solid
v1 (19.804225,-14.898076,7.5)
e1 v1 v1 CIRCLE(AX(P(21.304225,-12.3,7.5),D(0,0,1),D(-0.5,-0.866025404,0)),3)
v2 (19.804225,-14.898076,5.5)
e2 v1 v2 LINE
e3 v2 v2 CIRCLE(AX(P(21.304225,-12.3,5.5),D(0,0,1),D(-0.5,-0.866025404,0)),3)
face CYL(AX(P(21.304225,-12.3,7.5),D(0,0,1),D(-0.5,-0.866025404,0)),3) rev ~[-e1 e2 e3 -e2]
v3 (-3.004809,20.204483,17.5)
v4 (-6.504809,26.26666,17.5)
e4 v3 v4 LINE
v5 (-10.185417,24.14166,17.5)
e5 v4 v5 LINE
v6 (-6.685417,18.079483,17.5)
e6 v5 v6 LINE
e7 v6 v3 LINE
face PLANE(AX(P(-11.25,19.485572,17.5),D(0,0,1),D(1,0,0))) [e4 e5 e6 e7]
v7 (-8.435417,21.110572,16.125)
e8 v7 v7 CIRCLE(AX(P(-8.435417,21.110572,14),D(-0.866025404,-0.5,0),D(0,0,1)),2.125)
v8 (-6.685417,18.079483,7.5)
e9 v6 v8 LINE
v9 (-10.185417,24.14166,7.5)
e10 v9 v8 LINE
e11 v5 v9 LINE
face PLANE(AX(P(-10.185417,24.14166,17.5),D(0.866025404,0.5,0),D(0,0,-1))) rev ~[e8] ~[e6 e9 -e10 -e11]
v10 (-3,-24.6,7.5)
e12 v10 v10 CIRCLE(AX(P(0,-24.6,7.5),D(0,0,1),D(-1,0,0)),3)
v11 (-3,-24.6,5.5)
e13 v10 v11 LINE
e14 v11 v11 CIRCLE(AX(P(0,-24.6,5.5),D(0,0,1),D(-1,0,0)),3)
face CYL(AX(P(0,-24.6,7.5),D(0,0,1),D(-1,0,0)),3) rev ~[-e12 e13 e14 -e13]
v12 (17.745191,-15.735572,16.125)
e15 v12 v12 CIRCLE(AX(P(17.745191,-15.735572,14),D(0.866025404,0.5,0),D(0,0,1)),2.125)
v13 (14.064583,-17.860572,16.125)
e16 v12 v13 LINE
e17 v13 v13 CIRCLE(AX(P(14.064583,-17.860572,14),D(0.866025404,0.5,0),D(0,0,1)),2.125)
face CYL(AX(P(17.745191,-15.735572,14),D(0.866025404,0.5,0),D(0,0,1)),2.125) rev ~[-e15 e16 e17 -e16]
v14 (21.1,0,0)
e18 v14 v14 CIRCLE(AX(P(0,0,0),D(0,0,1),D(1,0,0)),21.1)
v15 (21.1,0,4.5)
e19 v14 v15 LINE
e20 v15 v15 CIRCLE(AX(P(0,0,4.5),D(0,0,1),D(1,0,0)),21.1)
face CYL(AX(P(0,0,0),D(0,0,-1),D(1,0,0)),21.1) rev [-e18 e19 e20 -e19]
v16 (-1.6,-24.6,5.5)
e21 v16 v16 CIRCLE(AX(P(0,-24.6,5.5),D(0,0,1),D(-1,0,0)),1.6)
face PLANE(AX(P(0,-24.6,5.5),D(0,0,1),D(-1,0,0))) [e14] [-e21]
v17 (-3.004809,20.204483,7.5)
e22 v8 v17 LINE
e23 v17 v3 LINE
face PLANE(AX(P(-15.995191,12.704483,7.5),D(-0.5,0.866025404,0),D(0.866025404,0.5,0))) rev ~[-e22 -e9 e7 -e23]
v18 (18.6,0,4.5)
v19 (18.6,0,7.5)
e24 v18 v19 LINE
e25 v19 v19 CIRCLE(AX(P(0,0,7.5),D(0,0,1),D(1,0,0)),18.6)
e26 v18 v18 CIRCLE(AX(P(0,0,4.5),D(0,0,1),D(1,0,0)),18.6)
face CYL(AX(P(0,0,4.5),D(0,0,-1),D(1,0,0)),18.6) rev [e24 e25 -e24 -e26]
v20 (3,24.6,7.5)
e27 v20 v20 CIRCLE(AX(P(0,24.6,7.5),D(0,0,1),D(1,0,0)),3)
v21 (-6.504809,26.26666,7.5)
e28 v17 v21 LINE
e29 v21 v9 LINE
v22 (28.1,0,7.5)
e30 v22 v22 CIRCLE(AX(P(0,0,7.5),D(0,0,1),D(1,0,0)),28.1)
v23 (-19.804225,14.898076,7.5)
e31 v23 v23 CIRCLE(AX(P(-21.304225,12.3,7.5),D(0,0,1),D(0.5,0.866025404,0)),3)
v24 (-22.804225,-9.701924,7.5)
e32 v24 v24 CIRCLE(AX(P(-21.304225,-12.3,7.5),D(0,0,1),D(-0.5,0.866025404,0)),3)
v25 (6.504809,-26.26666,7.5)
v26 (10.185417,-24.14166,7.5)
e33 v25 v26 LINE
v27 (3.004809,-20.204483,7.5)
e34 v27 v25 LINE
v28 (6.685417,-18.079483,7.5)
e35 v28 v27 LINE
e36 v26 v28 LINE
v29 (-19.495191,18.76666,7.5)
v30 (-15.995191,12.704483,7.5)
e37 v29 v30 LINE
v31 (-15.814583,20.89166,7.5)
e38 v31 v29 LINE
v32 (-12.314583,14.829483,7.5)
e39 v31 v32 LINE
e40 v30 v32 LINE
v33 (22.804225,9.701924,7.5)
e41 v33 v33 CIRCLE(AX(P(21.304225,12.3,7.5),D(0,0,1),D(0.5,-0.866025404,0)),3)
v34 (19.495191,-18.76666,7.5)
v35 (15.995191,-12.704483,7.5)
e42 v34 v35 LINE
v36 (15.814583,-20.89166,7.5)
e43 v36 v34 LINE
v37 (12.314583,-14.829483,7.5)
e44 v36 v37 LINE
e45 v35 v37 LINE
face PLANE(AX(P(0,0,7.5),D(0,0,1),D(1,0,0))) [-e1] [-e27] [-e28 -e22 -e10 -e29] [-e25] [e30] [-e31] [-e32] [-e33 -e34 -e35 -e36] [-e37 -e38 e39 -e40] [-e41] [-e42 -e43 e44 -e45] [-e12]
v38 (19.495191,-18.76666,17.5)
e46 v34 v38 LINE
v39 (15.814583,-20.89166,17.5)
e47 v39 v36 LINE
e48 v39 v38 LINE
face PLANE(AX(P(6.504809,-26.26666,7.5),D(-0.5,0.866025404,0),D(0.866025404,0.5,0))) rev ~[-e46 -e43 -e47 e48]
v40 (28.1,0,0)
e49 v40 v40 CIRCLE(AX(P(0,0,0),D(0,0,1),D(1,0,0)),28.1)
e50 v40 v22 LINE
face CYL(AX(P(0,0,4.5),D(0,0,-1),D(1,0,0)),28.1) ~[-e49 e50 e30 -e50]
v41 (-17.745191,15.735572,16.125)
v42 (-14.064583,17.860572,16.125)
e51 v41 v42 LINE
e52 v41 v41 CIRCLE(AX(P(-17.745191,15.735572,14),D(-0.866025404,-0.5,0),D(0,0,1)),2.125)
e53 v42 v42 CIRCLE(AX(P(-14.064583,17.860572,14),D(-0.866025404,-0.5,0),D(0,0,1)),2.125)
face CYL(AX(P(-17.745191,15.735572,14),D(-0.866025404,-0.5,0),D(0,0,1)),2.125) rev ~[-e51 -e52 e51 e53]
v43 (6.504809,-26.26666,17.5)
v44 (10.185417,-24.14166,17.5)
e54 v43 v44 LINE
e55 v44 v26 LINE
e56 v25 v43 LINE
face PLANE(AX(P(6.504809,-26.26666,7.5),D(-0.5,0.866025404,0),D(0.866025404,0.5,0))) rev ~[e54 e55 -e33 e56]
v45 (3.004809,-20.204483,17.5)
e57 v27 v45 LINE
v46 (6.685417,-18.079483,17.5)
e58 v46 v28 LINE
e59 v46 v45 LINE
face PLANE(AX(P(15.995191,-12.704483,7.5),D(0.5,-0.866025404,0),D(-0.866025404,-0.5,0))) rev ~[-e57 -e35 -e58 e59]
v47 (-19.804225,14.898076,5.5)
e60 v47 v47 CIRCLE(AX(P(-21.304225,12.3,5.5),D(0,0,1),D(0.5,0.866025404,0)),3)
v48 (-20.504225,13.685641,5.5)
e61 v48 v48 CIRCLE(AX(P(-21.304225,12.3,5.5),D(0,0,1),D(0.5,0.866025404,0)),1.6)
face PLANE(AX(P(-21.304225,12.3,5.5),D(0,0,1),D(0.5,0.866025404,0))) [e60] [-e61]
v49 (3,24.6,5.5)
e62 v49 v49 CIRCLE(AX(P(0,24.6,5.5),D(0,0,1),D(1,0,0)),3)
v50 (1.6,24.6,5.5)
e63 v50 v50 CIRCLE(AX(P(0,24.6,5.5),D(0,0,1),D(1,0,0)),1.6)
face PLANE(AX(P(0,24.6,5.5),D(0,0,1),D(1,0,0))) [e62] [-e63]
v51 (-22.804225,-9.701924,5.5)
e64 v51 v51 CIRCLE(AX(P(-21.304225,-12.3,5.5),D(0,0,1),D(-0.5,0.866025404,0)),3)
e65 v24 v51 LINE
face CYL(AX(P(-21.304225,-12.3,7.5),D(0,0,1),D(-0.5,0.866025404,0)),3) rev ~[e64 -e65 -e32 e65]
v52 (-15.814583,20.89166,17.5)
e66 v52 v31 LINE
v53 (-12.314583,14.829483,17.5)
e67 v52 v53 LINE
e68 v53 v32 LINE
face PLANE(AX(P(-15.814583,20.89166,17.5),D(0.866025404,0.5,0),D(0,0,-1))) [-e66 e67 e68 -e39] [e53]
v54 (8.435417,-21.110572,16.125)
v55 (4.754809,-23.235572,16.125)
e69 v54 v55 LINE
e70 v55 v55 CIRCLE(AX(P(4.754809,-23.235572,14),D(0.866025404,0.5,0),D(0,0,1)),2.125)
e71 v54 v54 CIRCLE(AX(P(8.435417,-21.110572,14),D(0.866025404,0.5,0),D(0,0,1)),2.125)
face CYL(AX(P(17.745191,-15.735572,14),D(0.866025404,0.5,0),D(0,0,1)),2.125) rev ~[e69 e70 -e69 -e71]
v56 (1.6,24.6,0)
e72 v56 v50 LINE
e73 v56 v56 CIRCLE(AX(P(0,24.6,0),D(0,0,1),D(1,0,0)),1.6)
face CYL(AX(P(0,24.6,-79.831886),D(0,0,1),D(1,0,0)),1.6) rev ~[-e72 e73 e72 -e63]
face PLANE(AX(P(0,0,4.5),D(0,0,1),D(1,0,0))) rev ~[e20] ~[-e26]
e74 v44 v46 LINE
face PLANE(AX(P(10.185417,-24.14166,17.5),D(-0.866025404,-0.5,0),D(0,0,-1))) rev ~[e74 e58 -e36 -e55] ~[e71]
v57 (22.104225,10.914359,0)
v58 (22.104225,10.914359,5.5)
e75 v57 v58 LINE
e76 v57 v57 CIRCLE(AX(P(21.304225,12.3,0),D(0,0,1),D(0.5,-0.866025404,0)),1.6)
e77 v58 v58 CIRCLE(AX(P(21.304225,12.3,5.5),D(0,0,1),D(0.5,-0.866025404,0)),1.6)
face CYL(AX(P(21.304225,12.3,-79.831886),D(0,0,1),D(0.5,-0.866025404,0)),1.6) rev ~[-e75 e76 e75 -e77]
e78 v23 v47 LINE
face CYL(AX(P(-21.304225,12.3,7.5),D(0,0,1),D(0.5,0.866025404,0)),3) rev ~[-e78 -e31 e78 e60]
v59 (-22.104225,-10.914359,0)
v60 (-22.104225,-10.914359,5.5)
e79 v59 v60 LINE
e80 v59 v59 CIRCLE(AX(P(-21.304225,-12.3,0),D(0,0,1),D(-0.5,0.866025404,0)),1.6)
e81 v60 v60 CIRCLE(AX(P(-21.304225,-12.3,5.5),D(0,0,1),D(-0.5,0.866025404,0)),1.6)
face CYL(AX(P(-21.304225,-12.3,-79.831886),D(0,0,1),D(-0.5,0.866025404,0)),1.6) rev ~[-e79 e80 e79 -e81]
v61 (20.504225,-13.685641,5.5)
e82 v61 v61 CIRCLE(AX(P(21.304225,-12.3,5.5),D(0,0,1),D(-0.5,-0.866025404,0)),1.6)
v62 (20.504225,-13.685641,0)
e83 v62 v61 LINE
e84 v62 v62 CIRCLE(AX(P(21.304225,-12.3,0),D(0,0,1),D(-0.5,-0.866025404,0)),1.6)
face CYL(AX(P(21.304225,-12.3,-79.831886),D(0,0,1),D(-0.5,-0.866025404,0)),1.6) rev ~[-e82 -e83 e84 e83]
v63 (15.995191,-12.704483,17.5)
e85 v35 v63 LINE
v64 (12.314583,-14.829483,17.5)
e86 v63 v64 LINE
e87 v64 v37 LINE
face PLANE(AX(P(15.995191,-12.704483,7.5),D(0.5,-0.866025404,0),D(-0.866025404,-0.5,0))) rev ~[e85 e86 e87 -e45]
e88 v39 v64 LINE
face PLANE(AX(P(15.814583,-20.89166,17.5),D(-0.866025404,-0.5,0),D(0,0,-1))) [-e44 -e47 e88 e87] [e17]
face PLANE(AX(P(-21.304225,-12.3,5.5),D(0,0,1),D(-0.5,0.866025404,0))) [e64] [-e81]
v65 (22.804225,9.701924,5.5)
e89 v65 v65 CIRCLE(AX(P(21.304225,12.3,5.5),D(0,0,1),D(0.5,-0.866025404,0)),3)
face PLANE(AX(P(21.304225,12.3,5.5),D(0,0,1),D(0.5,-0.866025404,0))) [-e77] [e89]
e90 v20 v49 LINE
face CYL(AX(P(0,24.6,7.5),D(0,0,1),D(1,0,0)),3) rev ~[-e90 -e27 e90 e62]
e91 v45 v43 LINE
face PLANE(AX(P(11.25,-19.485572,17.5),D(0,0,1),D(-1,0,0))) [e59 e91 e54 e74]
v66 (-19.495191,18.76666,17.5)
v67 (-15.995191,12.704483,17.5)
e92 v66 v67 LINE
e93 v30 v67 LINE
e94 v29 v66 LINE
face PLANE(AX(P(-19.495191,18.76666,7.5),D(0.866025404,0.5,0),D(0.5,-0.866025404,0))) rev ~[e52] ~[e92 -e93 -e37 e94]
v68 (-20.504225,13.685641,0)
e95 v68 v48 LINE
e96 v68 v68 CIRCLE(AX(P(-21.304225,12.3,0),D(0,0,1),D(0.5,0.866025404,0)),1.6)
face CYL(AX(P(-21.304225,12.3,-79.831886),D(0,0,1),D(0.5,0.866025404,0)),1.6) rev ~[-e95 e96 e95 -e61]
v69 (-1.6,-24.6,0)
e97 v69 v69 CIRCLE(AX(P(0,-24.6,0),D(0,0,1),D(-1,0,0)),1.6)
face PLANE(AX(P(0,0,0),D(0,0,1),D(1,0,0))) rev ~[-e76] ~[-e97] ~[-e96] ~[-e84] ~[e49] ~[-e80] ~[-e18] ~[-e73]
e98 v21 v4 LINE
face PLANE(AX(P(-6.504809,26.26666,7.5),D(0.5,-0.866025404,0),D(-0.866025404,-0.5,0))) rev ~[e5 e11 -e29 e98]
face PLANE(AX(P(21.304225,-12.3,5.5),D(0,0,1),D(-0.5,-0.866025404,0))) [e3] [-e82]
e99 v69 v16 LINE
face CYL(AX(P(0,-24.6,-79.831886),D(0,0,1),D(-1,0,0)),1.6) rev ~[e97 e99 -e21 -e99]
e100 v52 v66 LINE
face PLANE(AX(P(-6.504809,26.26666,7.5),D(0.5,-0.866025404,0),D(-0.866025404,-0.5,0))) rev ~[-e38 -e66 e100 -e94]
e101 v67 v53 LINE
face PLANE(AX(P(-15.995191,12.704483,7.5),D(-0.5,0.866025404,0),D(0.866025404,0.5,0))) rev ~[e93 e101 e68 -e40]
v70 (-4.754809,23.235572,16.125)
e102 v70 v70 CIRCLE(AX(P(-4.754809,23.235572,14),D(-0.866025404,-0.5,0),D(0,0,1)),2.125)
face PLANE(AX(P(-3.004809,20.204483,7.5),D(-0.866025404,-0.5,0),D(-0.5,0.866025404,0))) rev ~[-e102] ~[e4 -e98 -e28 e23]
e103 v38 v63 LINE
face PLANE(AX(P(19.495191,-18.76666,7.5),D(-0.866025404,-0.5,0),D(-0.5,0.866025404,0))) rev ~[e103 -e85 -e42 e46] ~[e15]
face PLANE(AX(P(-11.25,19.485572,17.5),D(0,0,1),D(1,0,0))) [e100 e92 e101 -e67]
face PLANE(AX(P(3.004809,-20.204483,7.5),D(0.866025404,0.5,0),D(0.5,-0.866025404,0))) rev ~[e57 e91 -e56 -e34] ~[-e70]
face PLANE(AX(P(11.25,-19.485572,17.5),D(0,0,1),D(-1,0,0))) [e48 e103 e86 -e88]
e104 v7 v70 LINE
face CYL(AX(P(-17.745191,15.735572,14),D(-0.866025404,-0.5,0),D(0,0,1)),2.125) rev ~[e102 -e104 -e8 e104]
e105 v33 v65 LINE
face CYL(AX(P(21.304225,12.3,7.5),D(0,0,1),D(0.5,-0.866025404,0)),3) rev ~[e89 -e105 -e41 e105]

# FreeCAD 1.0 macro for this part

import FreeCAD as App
import Part
import Sketcher
from FreeCAD import Vector
Q = App.Units.Quantity


def add_polygon(sketch, points):
    """Adds a closed chain of lines whose ends are joined by coincident constraints."""
    first, n = sketch.GeometryCount, len(points)
    for a, b in zip(points, points[1:] + points[:1]):
        sketch.addGeometry(Part.LineSegment(App.Vector(*a, 0), App.Vector(*b, 0)), False)
    for i in range(n):
        sketch.addConstraint(Sketcher.Constraint("Coincident", first + i, 2, first + (i + 1) % n, 1))

doc = App.newDocument("Part")
body = doc.addObject("PartDesign::Body", "Body")

# Sketch on XY plane
sketch1 = body.newObject("Sketcher::SketchObject", "Sketch")
sketch1.AttachmentSupport = (doc.getObject("XY_Plane"), [""])
sketch1.MapMode = "FlatFace"
sketch1.addGeometry(Part.Circle(Vector(0, 0, 0), Vector(0, 0, 1), 28), False)
sketch1.addGeometry(Part.Circle(Vector(0, 0, 0), Vector(0, 0, 1), 21), False)
sketch1.addConstraint(Sketcher.Constraint("Coincident", 0, 3, -1, 1))
sketch1.addConstraint(Sketcher.Constraint("Coincident", 1, 3, -1, 1))
sketch1.addConstraint(Sketcher.Constraint("Diameter", 0, 56.2))
sketch1.addConstraint(Sketcher.Constraint("Diameter", 1, 42.2))
pad1 = body.newObject("PartDesign::Pad", "Pad")
pad1.Profile = sketch1
pad1.Length = 4.5

# Sketch on XY plane
sketch2 = body.newObject("Sketcher::SketchObject", "Sketch001")
sketch2.AttachmentSupport = (doc.getObject("XY_Plane"), [""])
sketch2.MapMode = "FlatFace"
sketch2.AttachmentOffset = App.Placement(Vector(0, 0, 4.5), App.Rotation())
sketch2.addGeometry(Part.Circle(Vector(0, 0, 0), Vector(0, 0, 1), 28), False)
sketch2.addGeometry(Part.Circle(Vector(0, 0, 0), Vector(0, 0, 1), 19), False)
sketch2.addConstraint(Sketcher.Constraint("Coincident", 0, 3, -1, 1))
sketch2.addConstraint(Sketcher.Constraint("Coincident", 1, 3, -1, 1))
sketch2.addConstraint(Sketcher.Constraint("Diameter", 0, 56.2))
sketch2.addConstraint(Sketcher.Constraint("Diameter", 1, 37.2))
pad2 = body.newObject("PartDesign::Pad", "Pad001")
pad2.Profile = sketch2
pad2.Length = 3

# Sketch on XY plane
sketch3 = body.newObject("Sketcher::SketchObject", "Sketch002")
sketch3.AttachmentSupport = (doc.getObject("XY_Plane"), [""])
sketch3.MapMode = "FlatFace"
sketch3.addGeometry(Part.Circle(Vector(0, 24.6, 0), Vector(0, 0, 1), 1.6), False)
sketch3.addConstraint(Sketcher.Constraint("PointOnObject", 0, 3, -2))
sketch3.addConstraint(Sketcher.Constraint("Diameter", 0, 3.2))
sketch3.addConstraint(Sketcher.Constraint("DistanceY", -1, 1, 0, 3, 24.6))
doc.recompute()
hole = body.newObject("PartDesign::Hole", "Hole")
hole.Profile = sketch3
hole.ThreadType = "None"
hole.Diameter = 3.2
hole.DepthType = "ThroughAll"
hole.Reversed = True

# Sketch on XY plane
sketch4 = body.newObject("Sketcher::SketchObject", "Sketch003")
sketch4.AttachmentSupport = (doc.getObject("XY_Plane"), [""])
sketch4.MapMode = "FlatFace"
sketch4.AttachmentOffset = App.Placement(Vector(0, 0, 7.5), App.Rotation())
sketch4.addGeometry(Part.Circle(Vector(0, 24.6, 0), Vector(0, 0, 1), 3), False)
sketch4.addConstraint(Sketcher.Constraint("PointOnObject", 0, 3, -2))
sketch4.addConstraint(Sketcher.Constraint("Diameter", 0, 6.0))
sketch4.addConstraint(Sketcher.Constraint("DistanceY", -1, 1, 0, 3, 24.6))
pocket1 = body.newObject("PartDesign::Pocket", "Pocket")
pocket1.Profile = sketch4
pocket1.Length = 2

# Sketch on XY plane
sketch5 = body.newObject("Sketcher::SketchObject", "Sketch004")
sketch5.AttachmentSupport = (doc.getObject("XY_Plane"), [""])
sketch5.MapMode = "FlatFace"
sketch5.AttachmentOffset = App.Placement(Vector(0, 0, 7.5), App.Rotation())
add_polygon(sketch5, [(-7, 26), (-19, 19), (-16, 13), (-3, 20)])  # lines 0-3
sketch5.addConstraint(Sketcher.Constraint("Perpendicular", 0, 1))
sketch5.addConstraint(Sketcher.Constraint("Perpendicular", 1, 2))
sketch5.addConstraint(Sketcher.Constraint("Perpendicular", 2, 3))
sketch5.addConstraint(Sketcher.Constraint("Angle", 0, Q("-150 deg")))
sketch5.addConstraint(Sketcher.Constraint("Distance", 0, 15.0))
sketch5.addConstraint(Sketcher.Constraint("Distance", 1, 7.0))
sketch5.addConstraint(Sketcher.Constraint("DistanceX", 0, 2, -1, 1, 19.495191))
sketch5.addConstraint(Sketcher.Constraint("DistanceY", -1, 1, 0, 2, 18.76666))
pad3 = body.newObject("PartDesign::Pad", "Pad002")
pad3.Profile = sketch5
pad3.Length = 10

# Sketch on an angled plane
sketch6 = body.newObject("Sketcher::SketchObject", "Sketch005")
sketch6.Placement = App.Placement(Vector(-6.495191, -3.75, 0), App.Rotation(Vector(0, 0, 1), Vector(-0.5, 0.866025404, 0), Vector(-0.866025404, -0.5, 0), "ZXY"))
sketch6.addGeometry(Part.Circle(Vector(14, 22.5, 0), Vector(0, 0, 1), 2.1), False)
sketch6.addConstraint(Sketcher.Constraint("Diameter", 0, 4.25))
sketch6.addConstraint(Sketcher.Constraint("DistanceX", -1, 1, 0, 3, 14.0))
sketch6.addConstraint(Sketcher.Constraint("DistanceY", -1, 1, 0, 3, 22.5))
pocket2 = body.newObject("PartDesign::Pocket", "Pocket001")
pocket2.Profile = sketch6
pocket2.Length = 15

# Sketch on an angled plane
sketch7 = body.newObject("Sketcher::SketchObject", "Sketch006")
sketch7.Placement = App.Placement(Vector(-13, 22.51666, 0), App.Rotation(Vector(0.866025404, 0.5, 0), Vector(0, 0, -1), Vector(-0.5, 0.866025404, 0), "ZXY"))
add_polygon(sketch7, [(-3, -8), (-3, -18), (3, -18), (3, -8)])  # lines 0-3
sketch7.addConstraint(Sketcher.Constraint("Vertical", 0))
sketch7.addConstraint(Sketcher.Constraint("Horizontal", 1))
sketch7.addConstraint(Sketcher.Constraint("Vertical", 2))
sketch7.addConstraint(Sketcher.Constraint("Horizontal", 3))
sketch7.addConstraint(Sketcher.Constraint("DistanceY", 0, 2, 0, 1, 10.0))
sketch7.addConstraint(Sketcher.Constraint("DistanceX", 1, 1, 1, 2, 6.5))
sketch7.addConstraint(Sketcher.Constraint("DistanceY", 0, 2, -1, 1, 17.5))
sketch7.addConstraint(Sketcher.Constraint("DistanceX", 0, 2, -1, 1, 3.25))
pocket3 = body.newObject("PartDesign::Pocket", "Pocket002")
pocket3.Profile = sketch7
pocket3.Length = 7
doc.recompute()

polarpattern = body.newObject("PartDesign::PolarPattern", "PolarPattern")
polarpattern.Originals = [hole, pocket1]
polarpattern.Axis = (doc.getObject("Z_Axis"), [""])
polarpattern.Angle = 360
polarpattern.Occurrences = 6
body.Tip = polarpattern
doc.recompute()

polarpattern2 = body.newObject("PartDesign::PolarPattern", "PolarPattern001")
polarpattern2.Originals = [pad3, pocket2, pocket3]
polarpattern2.Axis = (doc.getObject("Z_Axis"), [""])
polarpattern2.Angle = 360
polarpattern2.Occurrences = 2
body.Tip = polarpattern2

doc.recompute()
